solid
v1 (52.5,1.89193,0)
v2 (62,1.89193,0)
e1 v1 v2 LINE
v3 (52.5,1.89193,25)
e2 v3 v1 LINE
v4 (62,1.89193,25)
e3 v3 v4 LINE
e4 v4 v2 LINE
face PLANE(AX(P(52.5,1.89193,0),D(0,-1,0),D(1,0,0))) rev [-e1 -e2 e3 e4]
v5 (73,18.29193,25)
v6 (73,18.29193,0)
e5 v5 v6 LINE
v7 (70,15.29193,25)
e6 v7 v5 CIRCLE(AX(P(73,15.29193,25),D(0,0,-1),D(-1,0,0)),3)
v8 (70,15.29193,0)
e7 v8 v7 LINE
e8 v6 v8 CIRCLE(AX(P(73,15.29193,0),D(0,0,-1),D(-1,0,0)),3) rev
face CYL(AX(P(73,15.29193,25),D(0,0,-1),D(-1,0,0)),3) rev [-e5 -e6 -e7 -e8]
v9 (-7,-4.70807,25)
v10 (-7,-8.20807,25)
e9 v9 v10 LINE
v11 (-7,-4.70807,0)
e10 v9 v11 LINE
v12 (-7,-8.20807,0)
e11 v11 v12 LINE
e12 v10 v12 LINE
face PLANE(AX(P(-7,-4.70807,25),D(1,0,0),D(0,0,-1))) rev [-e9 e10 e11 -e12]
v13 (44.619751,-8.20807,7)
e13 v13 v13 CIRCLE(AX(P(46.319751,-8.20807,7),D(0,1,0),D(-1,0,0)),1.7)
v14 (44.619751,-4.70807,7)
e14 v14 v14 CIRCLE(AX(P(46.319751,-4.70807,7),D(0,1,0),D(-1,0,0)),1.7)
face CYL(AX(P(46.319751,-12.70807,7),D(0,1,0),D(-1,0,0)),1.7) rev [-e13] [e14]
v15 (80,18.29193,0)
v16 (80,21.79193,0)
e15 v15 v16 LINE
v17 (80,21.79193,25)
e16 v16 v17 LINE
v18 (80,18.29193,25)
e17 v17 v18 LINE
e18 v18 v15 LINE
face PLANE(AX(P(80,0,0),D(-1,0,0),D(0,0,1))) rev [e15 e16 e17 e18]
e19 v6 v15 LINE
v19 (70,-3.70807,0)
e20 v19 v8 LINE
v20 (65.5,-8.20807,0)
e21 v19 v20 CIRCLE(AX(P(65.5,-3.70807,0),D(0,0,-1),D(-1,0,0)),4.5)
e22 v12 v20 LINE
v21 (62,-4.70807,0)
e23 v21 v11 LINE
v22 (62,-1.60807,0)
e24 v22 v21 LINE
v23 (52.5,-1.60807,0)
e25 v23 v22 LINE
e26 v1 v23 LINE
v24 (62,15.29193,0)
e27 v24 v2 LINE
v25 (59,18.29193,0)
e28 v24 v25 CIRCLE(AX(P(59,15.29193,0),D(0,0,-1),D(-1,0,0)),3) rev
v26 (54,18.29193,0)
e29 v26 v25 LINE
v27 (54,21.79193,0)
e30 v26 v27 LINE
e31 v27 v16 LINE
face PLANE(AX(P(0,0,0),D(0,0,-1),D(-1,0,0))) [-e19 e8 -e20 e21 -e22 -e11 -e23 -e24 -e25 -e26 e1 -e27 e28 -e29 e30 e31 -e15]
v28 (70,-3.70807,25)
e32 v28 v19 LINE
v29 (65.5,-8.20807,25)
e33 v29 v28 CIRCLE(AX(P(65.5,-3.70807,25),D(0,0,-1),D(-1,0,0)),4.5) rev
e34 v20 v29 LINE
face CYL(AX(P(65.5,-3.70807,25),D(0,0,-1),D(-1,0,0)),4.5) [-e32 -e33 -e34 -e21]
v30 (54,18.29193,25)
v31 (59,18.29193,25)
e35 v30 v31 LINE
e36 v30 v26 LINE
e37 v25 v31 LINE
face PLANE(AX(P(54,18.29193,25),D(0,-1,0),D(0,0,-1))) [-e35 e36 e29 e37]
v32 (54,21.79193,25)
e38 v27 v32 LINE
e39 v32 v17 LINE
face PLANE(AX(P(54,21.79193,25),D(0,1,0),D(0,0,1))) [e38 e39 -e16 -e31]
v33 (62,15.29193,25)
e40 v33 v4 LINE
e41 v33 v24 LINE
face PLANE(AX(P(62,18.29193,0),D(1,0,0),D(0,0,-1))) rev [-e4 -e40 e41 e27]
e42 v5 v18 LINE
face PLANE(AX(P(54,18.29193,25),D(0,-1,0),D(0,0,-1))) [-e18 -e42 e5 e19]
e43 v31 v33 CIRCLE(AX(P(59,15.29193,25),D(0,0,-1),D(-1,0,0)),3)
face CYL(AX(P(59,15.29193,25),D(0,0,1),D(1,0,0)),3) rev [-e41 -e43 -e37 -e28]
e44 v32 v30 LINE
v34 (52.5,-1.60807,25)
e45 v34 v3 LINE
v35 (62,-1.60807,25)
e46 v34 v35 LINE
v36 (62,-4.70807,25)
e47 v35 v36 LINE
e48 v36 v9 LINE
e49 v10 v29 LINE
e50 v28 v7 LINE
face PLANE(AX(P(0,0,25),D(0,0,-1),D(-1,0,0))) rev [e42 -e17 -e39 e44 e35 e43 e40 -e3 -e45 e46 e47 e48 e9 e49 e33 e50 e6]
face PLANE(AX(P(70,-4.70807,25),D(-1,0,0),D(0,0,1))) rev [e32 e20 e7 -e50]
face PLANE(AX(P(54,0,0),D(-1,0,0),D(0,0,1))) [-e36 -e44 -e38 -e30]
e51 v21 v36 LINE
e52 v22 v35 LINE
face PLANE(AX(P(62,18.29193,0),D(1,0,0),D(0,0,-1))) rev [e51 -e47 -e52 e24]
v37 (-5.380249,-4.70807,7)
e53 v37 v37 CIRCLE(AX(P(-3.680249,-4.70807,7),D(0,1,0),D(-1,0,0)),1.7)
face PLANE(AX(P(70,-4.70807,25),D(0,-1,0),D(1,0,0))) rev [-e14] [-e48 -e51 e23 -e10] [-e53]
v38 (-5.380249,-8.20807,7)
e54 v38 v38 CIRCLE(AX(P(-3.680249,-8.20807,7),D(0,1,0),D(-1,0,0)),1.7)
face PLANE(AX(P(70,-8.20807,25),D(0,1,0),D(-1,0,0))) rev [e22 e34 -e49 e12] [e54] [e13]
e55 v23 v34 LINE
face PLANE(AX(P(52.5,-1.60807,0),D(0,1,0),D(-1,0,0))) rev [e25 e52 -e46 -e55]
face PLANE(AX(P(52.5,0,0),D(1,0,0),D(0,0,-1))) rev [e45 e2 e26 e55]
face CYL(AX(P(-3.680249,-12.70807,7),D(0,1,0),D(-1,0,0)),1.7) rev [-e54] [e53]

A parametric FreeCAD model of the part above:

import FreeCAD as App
import Part
import Sketcher
Q = App.Units.Quantity


def edges_at(feature, points):
    """Names of the edges that pass closest to the given points."""
    edges = feature.Shape.Edges
    near = lambda p: min(range(len(edges)), key=lambda i: edges[i].distToShape(Part.Vertex(*p))[0])
    return sorted({f"Edge{near(p) + 1}" for p in points})


def add_polygon(sketch, points):
    """Adds a closed chain of lines whose ends are joined by coincident constraints."""
    first, n = sketch.GeometryCount, len(points)
    for a, b in zip(points, points[1:] + points[:1]):
        sketch.addGeometry(Part.LineSegment(App.Vector(*a, 0), App.Vector(*b, 0)), False)
    for i in range(n):
        sketch.addConstraint(Sketcher.Constraint("Coincident", first + i, 2, first + (i + 1) % n, 1))

doc = App.newDocument("Part")
params = doc.addObject("Spreadsheet::Sheet", "Params")
for row, (alias, value) in enumerate([
    ("sketch1_width", "77 mm"),
    ("sketch1_height", "3.5 mm"),
    ("pad1_length", "25 mm"),
    ("sketch2_width", "8 mm"),
    ("sketch2_height", "25 mm"),
    ("pad2_length", "23 mm"),
    ("sketch3_height", "25 mm"),
    ("sketch3_width", "3.5 mm"),
    ("pad3_length", "9.5 mm"),
    ("sketch4_height", "25 mm"),
    ("sketch4_width", "3.5 mm"),
    ("pad4_length", "10 mm"),
    ("pad4_length2", "16 mm"),
    ("sketch5_diameter", "3.4 mm"),
    ("pocket1_length", "8 mm"),
    ("fillet_radius", "4.5 mm"),
    ("fillet2_radius", "3 mm"),
    ("fillet3_radius", "3 mm"),
], start=1):
    params.set(f"A{row}", alias)
    params.set(f"B{row}", "=" + value)
    params.setAlias(f"B{row}", alias)

body = doc.addObject("PartDesign::Body", "Body")

# Sketch on XY plane
sketch1 = body.newObject("Sketcher::SketchObject", "Sketch")
sketch1.AttachmentSupport = (doc.getObject("XY_Plane"), [""])
sketch1.MapMode = "FlatFace"
add_polygon(sketch1, [(-7, -4.7), (-7, -8.2), (70, -8.2), (70, -4.7)])  # lines 0-3
sketch1.addConstraint(Sketcher.Constraint("Vertical", 0))
sketch1.addConstraint(Sketcher.Constraint("Horizontal", 1))
sketch1.addConstraint(Sketcher.Constraint("Vertical", 2))
sketch1.addConstraint(Sketcher.Constraint("Horizontal", 3))
sketch1.addConstraint(Sketcher.Constraint("DistanceX", 1, 1, 1, 2, Q("77 mm")))
sketch1.addConstraint(Sketcher.Constraint("DistanceY", 0, 2, 0, 1, Q("3.5 mm")))
sketch1.addConstraint(Sketcher.Constraint("DistanceX", 0, 2, -1, 1, Q("7 mm")))
sketch1.addConstraint(Sketcher.Constraint("DistanceY", 0, 2, -1, 1, Q("8.20807 mm")))
sketch1.setExpression("Constraints[8]", "Params.sketch1_width")
sketch1.setExpression("Constraints[9]", "Params.sketch1_height")
pad1 = body.newObject("PartDesign::Pad", "Pad")
pad1.Profile = sketch1
pad1.setExpression("Length", "Params.pad1_length")

# Sketch on XZ plane
sketch2 = body.newObject("Sketcher::SketchObject", "Sketch001")
sketch2.AttachmentSupport = (doc.getObject("XZ_Plane"), [""])
sketch2.MapMode = "FlatFace"
sketch2.AttachmentOffset = App.Placement(App.Vector(0, 0, 4.70807), App.Rotation())
add_polygon(sketch2, [(62, 0), (62, 25), (70, 25), (70, 0)])  # lines 0-3
sketch2.addConstraint(Sketcher.Constraint("Vertical", 0))
sketch2.addConstraint(Sketcher.Constraint("Horizontal", 1))
sketch2.addConstraint(Sketcher.Constraint("Vertical", 2))
sketch2.addConstraint(Sketcher.Constraint("Horizontal", 3))
sketch2.addConstraint(Sketcher.Constraint("PointOnObject", 2, 2, -1))
sketch2.addConstraint(Sketcher.Constraint("DistanceX", 1, 1, 1, 2, Q("8 mm")))
sketch2.addConstraint(Sketcher.Constraint("DistanceY", 0, 1, 0, 2, Q("25 mm")))
sketch2.addConstraint(Sketcher.Constraint("DistanceX", -1, 1, 0, 2, Q("62 mm")))
sketch2.setExpression("Constraints[9]", "Params.sketch2_width")
sketch2.setExpression("Constraints[10]", "Params.sketch2_height")
pad2 = body.newObject("PartDesign::Pad", "Pad001")
pad2.Profile = sketch2
pad2.setExpression("Length", "Params.pad2_length")
pad2.Reversed = True

# Sketch on YZ plane
sketch3 = body.newObject("Sketcher::SketchObject", "Sketch002")
sketch3.AttachmentSupport = (doc.getObject("YZ_Plane"), [""])
sketch3.MapMode = "FlatFace"
sketch3.AttachmentOffset = App.Placement(App.Vector(0, 0, 62), App.Rotation())
add_polygon(sketch3, [(1.9, 0), (-1.6, 0), (-1.6, 25), (1.9, 25)])  # lines 0-3
sketch3.addConstraint(Sketcher.Constraint("Horizontal", 0))
sketch3.addConstraint(Sketcher.Constraint("Vertical", 1))
sketch3.addConstraint(Sketcher.Constraint("Horizontal", 2))
sketch3.addConstraint(Sketcher.Constraint("Vertical", 3))
sketch3.addConstraint(Sketcher.Constraint("PointOnObject", 0, 2, -1))
sketch3.addConstraint(Sketcher.Constraint("DistanceY", 1, 1, 1, 2, Q("25 mm")))
sketch3.addConstraint(Sketcher.Constraint("DistanceX", 0, 2, 0, 1, Q("3.5 mm")))
sketch3.addConstraint(Sketcher.Constraint("DistanceX", 0, 2, -1, 1, Q("1.60807 mm")))
sketch3.setExpression("Constraints[9]", "Params.sketch3_height")
sketch3.setExpression("Constraints[10]", "Params.sketch3_width")
pad3 = body.newObject("PartDesign::Pad", "Pad002")
pad3.Profile = sketch3
pad3.setExpression("Length", "Params.pad3_length")
pad3.Reversed = True

# Sketch on YZ plane
sketch4 = body.newObject("Sketcher::SketchObject", "Sketch003")
sketch4.AttachmentSupport = (doc.getObject("YZ_Plane"), [""])
sketch4.MapMode = "FlatFace"
sketch4.AttachmentOffset = App.Placement(App.Vector(0, 0, 70), App.Rotation())
add_polygon(sketch4, [(21.8, 25), (18.3, 25), (18.3, 0), (21.8, 0)])  # lines 0-3
sketch4.addConstraint(Sketcher.Constraint("Horizontal", 0))
sketch4.addConstraint(Sketcher.Constraint("Vertical", 1))
sketch4.addConstraint(Sketcher.Constraint("Horizontal", 2))
sketch4.addConstraint(Sketcher.Constraint("Vertical", 3))
sketch4.addConstraint(Sketcher.Constraint("PointOnObject", 1, 2, -1))
sketch4.addConstraint(Sketcher.Constraint("DistanceY", 1, 2, 1, 1, Q("25 mm")))
sketch4.addConstraint(Sketcher.Constraint("DistanceX", 0, 2, 0, 1, Q("3.5 mm")))
sketch4.addConstraint(Sketcher.Constraint("DistanceX", -1, 1, 0, 2, Q("18.29193 mm")))
sketch4.setExpression("Constraints[9]", "Params.sketch4_height")
sketch4.setExpression("Constraints[10]", "Params.sketch4_width")
pad4 = body.newObject("PartDesign::Pad", "Pad003")
pad4.Profile = sketch4
pad4.Type = "TwoLengths"
pad4.setExpression("Length", "Params.pad4_length")
pad4.setExpression("Length2", "Params.pad4_length2")

# Sketch on XZ plane
sketch5 = body.newObject("Sketcher::SketchObject", "Sketch004")
sketch5.AttachmentSupport = (doc.getObject("XZ_Plane"), [""])
sketch5.MapMode = "FlatFace"
sketch5.AttachmentOffset = App.Placement(App.Vector(0, 0, 4.70807), App.Rotation())
sketch5.addGeometry(Part.Circle(App.Vector(46.3, 7, 0), App.Vector(0, 0, 1), 1.7), False)
sketch5.addGeometry(Part.Circle(App.Vector(-3.7, 7, 0), App.Vector(0, 0, 1), 1.7), False)
sketch5.addConstraint(Sketcher.Constraint("Equal", 0, 1))
sketch5.addConstraint(Sketcher.Constraint("Horizontal", 0, 3, 1, 3))
sketch5.addConstraint(Sketcher.Constraint("Diameter", 0, Q("3.4 mm")))
sketch5.addConstraint(Sketcher.Constraint("DistanceY", -1, 1, 0, 3, Q("7 mm")))
sketch5.addConstraint(Sketcher.Constraint("DistanceX", 1, 3, 0, 3, Q("50 mm")))
sketch5.addConstraint(Sketcher.Constraint("DistanceX", -1, 1, 0, 3, Q("46.319751 mm")))
sketch5.setExpression("Constraints[2]", "Params.sketch5_diameter")
pocket1 = body.newObject("PartDesign::Pocket", "Pocket")
pocket1.Profile = sketch5
pocket1.setExpression("Length", "Params.pocket1_length")
pocket1.Reversed = True
doc.recompute()

fillet = body.newObject("PartDesign::Fillet", "Fillet")
fillet.Base = (pocket1, edges_at(pocket1, [(70, -8.208, 12.5)]))
fillet.setExpression("Radius", "Params.fillet_radius")
doc.recompute()

fillet2 = body.newObject("PartDesign::Fillet", "Fillet001")
fillet2.Base = (fillet, edges_at(fillet, [(70, 18.292, 12.5)]))
fillet2.setExpression("Radius", "Params.fillet2_radius")
doc.recompute()

fillet3 = body.newObject("PartDesign::Fillet", "Fillet002")
fillet3.Base = (fillet2, edges_at(fillet2, [(62, 18.292, 12.5)]))
fillet3.setExpression("Radius", "Params.fillet3_radius")

doc.recompute()
